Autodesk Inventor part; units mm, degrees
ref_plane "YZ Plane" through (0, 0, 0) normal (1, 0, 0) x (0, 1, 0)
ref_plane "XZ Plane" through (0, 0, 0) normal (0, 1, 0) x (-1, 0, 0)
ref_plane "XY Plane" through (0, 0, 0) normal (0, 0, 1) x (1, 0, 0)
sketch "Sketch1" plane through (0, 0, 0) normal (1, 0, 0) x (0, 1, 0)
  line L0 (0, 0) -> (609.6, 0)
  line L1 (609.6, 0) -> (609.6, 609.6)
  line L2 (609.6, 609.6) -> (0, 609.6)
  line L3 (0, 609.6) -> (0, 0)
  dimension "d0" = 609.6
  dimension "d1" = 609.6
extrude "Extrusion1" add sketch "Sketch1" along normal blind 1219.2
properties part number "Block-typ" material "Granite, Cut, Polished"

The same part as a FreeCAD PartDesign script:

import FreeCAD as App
import Part
import Sketcher
from FreeCAD import Vector
Q = App.Units.Quantity


def add_polygon(sketch, points):
    """Adds a closed chain of lines whose ends are joined by coincident constraints."""
    first, n = sketch.GeometryCount, len(points)
    for a, b in zip(points, points[1:] + points[:1]):
        sketch.addGeometry(Part.LineSegment(App.Vector(*a, 0), App.Vector(*b, 0)), False)
    for i in range(n):
        sketch.addConstraint(Sketcher.Constraint("Coincident", first + i, 2, first + (i + 1) % n, 1))

doc = App.newDocument("Part")
body = doc.addObject("PartDesign::Body", "Body")

# Sketch on YZ plane
sketch1 = body.newObject("Sketcher::SketchObject", "Sketch")
sketch1.AttachmentSupport = (doc.getObject("YZ_Plane"), [""])
sketch1.MapMode = "FlatFace"
add_polygon(sketch1, [(0, 610), (0, 0), (610, 0), (610, 610)])  # lines 0-3
sketch1.addConstraint([
    Sketcher.Constraint("Vertical", 0),
    Sketcher.Constraint("Horizontal", 1),
    Sketcher.Constraint("Vertical", 2),
    Sketcher.Constraint("Horizontal", 3),
    Sketcher.Constraint("Coincident", 0, 2, -1, 1),
    Sketcher.Constraint("Equal", 3, 0),
    Sketcher.Constraint("DistanceX", 1, 1, 1, 2, Q("24 in")),
])
pad1 = body.newObject("PartDesign::Pad", "Pad")
pad1.Profile = sketch1
pad1.Length = Q("48 in")

doc.recompute()
